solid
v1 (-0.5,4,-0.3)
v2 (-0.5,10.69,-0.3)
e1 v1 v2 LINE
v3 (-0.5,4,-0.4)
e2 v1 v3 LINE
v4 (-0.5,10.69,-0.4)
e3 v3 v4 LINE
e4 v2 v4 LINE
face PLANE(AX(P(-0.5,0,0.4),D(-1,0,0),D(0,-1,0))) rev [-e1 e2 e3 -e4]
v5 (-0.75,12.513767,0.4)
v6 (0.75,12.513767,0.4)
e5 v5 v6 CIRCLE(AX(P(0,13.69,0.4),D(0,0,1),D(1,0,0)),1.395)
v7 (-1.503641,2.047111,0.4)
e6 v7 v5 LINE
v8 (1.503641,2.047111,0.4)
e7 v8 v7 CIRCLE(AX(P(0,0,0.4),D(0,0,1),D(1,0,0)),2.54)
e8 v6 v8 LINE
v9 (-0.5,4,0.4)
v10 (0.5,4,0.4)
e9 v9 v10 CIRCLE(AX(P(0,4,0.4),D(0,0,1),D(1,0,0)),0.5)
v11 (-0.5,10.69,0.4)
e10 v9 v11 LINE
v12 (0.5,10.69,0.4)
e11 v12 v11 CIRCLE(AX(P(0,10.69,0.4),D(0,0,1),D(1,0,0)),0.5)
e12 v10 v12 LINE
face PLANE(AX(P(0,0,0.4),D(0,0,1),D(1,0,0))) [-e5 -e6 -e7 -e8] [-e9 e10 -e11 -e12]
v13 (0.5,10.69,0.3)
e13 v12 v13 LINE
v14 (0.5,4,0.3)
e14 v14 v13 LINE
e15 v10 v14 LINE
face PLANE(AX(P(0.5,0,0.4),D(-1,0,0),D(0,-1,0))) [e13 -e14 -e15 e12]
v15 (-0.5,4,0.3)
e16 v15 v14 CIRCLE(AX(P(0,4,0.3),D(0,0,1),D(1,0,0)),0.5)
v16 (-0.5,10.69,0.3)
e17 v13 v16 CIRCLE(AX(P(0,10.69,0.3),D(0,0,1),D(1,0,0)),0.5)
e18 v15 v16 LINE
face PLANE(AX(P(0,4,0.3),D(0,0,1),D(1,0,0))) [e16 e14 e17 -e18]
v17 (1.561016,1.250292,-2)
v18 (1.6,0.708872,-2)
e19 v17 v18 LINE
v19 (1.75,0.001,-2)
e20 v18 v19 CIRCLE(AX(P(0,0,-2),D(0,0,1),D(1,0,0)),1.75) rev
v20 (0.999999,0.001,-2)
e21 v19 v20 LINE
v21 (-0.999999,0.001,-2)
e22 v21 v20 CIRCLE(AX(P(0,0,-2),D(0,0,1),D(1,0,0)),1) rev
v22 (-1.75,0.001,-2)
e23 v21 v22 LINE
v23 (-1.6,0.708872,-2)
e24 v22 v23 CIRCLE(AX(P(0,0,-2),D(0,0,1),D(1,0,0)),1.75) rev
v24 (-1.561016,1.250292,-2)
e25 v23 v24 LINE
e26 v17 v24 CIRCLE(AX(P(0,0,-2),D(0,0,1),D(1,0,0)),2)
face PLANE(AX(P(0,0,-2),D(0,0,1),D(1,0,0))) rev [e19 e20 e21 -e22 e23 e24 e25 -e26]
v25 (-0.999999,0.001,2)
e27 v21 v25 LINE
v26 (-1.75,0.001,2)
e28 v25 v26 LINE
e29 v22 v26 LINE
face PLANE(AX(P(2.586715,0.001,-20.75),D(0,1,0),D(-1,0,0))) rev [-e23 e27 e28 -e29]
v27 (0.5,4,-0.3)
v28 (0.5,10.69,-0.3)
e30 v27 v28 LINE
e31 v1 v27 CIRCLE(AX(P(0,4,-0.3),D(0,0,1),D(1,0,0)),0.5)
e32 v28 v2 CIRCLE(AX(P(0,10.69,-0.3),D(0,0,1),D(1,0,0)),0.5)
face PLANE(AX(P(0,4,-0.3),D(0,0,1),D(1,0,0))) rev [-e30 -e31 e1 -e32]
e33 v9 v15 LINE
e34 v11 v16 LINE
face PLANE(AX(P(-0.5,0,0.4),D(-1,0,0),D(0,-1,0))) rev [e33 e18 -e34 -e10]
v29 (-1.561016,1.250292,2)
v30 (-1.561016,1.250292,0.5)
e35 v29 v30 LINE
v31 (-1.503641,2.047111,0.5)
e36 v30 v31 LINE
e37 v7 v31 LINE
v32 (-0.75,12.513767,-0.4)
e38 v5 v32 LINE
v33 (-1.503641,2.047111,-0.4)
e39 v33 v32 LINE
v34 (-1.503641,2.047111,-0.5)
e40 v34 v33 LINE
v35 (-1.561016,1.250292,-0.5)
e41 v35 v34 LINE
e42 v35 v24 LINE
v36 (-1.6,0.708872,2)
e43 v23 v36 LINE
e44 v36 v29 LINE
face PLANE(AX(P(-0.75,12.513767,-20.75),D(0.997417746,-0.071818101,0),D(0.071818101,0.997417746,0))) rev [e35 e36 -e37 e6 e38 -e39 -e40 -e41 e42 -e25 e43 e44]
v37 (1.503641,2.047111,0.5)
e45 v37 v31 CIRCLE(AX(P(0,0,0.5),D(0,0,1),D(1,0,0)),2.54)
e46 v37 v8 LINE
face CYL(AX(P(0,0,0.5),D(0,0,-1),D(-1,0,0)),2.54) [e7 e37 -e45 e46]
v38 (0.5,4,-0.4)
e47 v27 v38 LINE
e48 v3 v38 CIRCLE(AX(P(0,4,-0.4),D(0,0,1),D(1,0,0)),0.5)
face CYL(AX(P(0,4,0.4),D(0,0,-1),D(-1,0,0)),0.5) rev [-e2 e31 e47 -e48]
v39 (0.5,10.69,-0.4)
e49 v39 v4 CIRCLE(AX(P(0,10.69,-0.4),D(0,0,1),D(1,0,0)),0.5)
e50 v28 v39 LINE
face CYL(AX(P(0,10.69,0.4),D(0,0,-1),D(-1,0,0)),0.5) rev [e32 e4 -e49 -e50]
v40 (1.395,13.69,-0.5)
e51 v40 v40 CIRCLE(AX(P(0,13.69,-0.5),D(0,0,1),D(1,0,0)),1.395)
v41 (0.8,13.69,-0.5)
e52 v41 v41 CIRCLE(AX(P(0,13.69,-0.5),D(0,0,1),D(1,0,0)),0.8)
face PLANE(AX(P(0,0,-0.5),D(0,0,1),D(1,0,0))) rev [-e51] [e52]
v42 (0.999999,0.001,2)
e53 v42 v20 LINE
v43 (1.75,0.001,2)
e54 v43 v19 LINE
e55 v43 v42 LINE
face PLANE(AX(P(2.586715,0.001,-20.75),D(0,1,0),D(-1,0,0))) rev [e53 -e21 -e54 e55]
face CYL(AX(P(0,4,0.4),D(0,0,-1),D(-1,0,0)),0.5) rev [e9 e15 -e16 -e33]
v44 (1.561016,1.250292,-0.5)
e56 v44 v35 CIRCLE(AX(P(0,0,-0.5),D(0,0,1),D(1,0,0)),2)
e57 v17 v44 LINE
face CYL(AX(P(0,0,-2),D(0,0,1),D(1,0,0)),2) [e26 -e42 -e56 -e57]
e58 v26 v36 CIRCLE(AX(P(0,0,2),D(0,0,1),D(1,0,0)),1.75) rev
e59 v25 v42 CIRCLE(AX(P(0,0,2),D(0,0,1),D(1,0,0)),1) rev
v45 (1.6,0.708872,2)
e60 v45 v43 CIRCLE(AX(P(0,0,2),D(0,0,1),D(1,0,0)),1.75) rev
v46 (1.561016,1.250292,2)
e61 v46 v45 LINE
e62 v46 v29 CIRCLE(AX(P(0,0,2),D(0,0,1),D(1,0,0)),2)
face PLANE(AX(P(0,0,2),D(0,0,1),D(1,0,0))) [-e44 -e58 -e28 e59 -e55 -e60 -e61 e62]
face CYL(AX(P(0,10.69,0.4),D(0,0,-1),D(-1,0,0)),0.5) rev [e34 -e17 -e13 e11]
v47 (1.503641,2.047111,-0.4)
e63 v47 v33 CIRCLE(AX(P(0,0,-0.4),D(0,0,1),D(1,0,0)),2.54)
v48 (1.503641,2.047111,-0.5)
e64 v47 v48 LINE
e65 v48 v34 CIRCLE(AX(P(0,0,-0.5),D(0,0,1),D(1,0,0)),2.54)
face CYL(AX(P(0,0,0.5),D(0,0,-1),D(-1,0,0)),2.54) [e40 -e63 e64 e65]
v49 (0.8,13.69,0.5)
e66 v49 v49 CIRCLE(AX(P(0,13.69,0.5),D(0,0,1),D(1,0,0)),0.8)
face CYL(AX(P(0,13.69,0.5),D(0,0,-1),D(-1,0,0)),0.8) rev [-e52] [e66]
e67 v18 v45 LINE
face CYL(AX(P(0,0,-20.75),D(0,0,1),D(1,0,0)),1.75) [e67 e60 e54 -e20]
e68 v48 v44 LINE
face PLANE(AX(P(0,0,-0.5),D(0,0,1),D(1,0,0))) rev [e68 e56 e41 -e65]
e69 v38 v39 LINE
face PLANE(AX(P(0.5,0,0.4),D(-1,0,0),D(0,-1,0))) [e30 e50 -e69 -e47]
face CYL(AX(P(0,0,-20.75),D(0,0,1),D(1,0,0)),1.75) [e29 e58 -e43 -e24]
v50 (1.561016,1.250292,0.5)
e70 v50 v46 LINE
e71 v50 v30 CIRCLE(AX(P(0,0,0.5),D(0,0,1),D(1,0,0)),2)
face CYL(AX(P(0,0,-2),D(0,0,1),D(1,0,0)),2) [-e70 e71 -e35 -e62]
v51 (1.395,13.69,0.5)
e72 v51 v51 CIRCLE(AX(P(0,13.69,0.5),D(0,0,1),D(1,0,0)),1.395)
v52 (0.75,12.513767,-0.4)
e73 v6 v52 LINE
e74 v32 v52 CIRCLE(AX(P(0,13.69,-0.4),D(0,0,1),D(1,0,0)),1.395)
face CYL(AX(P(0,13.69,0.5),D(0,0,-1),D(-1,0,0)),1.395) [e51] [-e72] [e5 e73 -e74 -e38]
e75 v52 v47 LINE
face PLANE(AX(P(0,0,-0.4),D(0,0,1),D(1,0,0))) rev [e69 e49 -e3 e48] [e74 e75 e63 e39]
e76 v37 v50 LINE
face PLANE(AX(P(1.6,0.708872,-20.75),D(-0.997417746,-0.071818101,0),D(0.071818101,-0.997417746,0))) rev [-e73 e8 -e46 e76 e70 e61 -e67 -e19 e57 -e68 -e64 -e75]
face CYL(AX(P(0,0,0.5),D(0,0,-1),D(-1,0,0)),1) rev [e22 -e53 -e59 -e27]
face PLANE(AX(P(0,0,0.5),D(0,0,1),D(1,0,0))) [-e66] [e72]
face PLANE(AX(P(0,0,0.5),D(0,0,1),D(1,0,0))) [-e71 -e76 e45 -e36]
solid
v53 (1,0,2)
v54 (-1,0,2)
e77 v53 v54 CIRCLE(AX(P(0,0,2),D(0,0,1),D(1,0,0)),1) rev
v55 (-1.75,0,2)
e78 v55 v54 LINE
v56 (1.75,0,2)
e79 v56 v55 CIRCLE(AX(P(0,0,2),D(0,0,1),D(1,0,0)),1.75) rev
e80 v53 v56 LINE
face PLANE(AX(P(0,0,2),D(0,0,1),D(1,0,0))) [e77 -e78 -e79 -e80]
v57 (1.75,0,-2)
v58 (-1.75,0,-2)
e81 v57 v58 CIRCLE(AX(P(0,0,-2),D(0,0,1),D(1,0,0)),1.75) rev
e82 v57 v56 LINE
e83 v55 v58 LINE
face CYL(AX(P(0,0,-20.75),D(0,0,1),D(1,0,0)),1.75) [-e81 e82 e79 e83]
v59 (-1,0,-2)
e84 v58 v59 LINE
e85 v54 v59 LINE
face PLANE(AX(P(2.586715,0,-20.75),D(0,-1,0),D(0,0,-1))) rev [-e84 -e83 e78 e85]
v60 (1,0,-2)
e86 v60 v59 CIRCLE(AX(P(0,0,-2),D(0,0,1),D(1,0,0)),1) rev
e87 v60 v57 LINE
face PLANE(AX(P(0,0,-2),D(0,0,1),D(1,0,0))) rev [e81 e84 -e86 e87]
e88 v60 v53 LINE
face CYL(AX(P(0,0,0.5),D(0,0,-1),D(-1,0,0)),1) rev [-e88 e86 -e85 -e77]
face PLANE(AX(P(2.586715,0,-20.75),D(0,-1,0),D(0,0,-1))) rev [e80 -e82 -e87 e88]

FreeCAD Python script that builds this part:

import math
import FreeCAD as App
import Part
import Sketcher
from FreeCAD import Vector

doc = App.newDocument("Part")
body = doc.addObject("PartDesign::Body", "Body")

# Sketch on XY plane
sketch1 = body.newObject("Sketcher::SketchObject", "Sketch")
sketch1.AttachmentSupport = (doc.getObject("XY_Plane"), [""])
sketch1.MapMode = "FlatFace"
sketch1.addGeometry([
    Part.Circle(Vector(0, 0, 0), Vector(0, 0, 1), 2.5),
    Part.Circle(Vector(0, 0, 0), Vector(0, 0, 1), 1),
], False)
sketch1.addConstraint([
    Sketcher.Constraint("Coincident", 0, 3, -1, 1),
    Sketcher.Constraint("Coincident", 1, 3, -1, 1),
    Sketcher.Constraint("Diameter", 1, 2.0),
    Sketcher.Constraint("Diameter", 0, 5.08),
])
pad1 = body.newObject("PartDesign::Pad", "Pad")
pad1.Profile = sketch1
pad1.Length = 1
pad1.Midplane = True
body2 = doc.addObject("PartDesign::Body", "Body001")

# Sketch on XY plane
sketch2 = body2.newObject("Sketcher::SketchObject", "Sketch001")
sketch2.AttachmentSupport = (doc.getObject("XY_Plane001"), [""])
sketch2.MapMode = "FlatFace"
sketch2.addGeometry([
    Part.Circle(Vector(0, 13.7, 0), Vector(0, 0, 1), 1.4),
    Part.Circle(Vector(0, 13.7, 0), Vector(0, 0, 1), 0.8),
], False)
sketch2.addConstraint([
    Sketcher.Constraint("Coincident", 1, 3, 0, 3),
    Sketcher.Constraint("PointOnObject", 0, 3, -2),
    Sketcher.Constraint("Diameter", 1, 1.6),
    Sketcher.Constraint("Diameter", 0, 2.79),
    Sketcher.Constraint("DistanceY", -1, 1, 0, 3, 13.69),
])
pad2 = body2.newObject("PartDesign::Pad", "Pad001")
pad2.Profile = sketch2
pad2.Length = 1
pad2.Midplane = True
body.AllowCompound = True
doc.recompute()

boolean = body.newObject("PartDesign::Boolean", "Boolean")
boolean.Type = "Fuse"
boolean.addObjects([body2])

# Sketch on XY plane
sketch3 = body.newObject("Sketcher::SketchObject", "Sketch002")
sketch3.AttachmentSupport = (doc.getObject("XY_Plane"), [""])
sketch3.MapMode = "FlatFace"
sketch3.addGeometry([
    Part.LineSegment(Vector(-0.8, 12.5, 0), Vector(-1.6, 1.9, 0)),  # 0
    Part.ArcOfCircle(Part.Circle(Vector(0, 0, 0), Vector(0, 0, 1), 2.5), math.radians(49), math.radians(131)),  # 1
    Part.LineSegment(Vector(1.6, 1.9, 0), Vector(0.8, 12.5, 0)),  # 2
    Part.ArcOfCircle(Part.Circle(Vector(0, 13.7, 0), Vector(0, 0, 1), 1.4), math.radians(-123), math.radians(-57)),  # 3
    Part.LineSegment(Vector(0.5, 10.7, 0), Vector(0.5, 4, 0)),  # 4
    Part.ArcOfCircle(Part.Circle(Vector(0, 4, 0), Vector(0, 0, 1), 0.5), math.radians(180), math.radians(360)),  # 5
    Part.LineSegment(Vector(-0.5, 4, 0), Vector(-0.5, 10.7, 0)),  # 6
    Part.ArcOfCircle(Part.Circle(Vector(0, 10.7, 0), Vector(0, 0, 1), 0.5), math.radians(0), math.radians(180)),  # 7
], False)
sketch3.addConstraint([
    Sketcher.Constraint("Coincident", 0, 2, 1, 2),
    Sketcher.Constraint("Coincident", 1, 1, 2, 1),
    Sketcher.Constraint("Coincident", 2, 2, 3, 2),
    Sketcher.Constraint("Coincident", 3, 1, 0, 1),
    Sketcher.Constraint("Tangent", 4, 2, 5, 2),
    Sketcher.Constraint("Tangent", 5, 1, 6, 1),
    Sketcher.Constraint("Tangent", 6, 2, 7, 2),
    Sketcher.Constraint("Tangent", 7, 1, 4, 1),
    Sketcher.Constraint("Vertical", 4),
    Sketcher.Constraint("Vertical", 6),
    Sketcher.Constraint("Coincident", 1, 3, -1, 1),
    Sketcher.Constraint("Symmetric", 2, 2, 3, 1, -2),
    Sketcher.Constraint("PointOnObject", 5, 3, -2),
    Sketcher.Constraint("Horizontal", 0, 2, 1, 1),
    Sketcher.Constraint("Radius", 5, 0.5),
    Sketcher.Constraint("Radius", 1, 2.54),
    Sketcher.Constraint("DistanceY", -1, 1, 5, 3, 4.0),
    Sketcher.Constraint("Radius", 3, 1.395),
    Sketcher.Constraint("DistanceY", 7, 3, 3, 3, 3.0),
    Sketcher.Constraint("DistanceY", 4, 2, 4, 1, 6.69),
    Sketcher.Constraint("DistanceX", 0, 2, 1, 1, 3.3),
    Sketcher.Constraint("DistanceX", 2, 2, 1, 1, 0.9),
])
pad3 = body.newObject("PartDesign::Pad", "Pad002")
pad3.Profile = sketch3
pad3.Length = 0.8
pad3.Midplane = True

# Sketch on XY plane
sketch4 = body.newObject("Sketcher::SketchObject", "Sketch003")
sketch4.AttachmentSupport = (doc.getObject("XY_Plane"), [""])
sketch4.MapMode = "FlatFace"
sketch4.addGeometry([
    Part.LineSegment(Vector(-0.5, 10.7, 0), Vector(-0.5, 4, 0)),
    Part.ArcOfCircle(Part.Circle(Vector(0, 4, 0), Vector(0, 0, 1), 0.5), math.radians(180), math.radians(360)),
    Part.LineSegment(Vector(0.5, 4, 0), Vector(0.5, 10.7, 0)),
    Part.ArcOfCircle(Part.Circle(Vector(0, 10.7, 0), Vector(0, 0, 1), 0.5), math.radians(0), math.radians(180)),
], False)
sketch4.addConstraint([
    Sketcher.Constraint("Tangent", 0, 2, 1, 1),
    Sketcher.Constraint("Tangent", 1, 2, 2, 1),
    Sketcher.Constraint("Tangent", 2, 2, 3, 1),
    Sketcher.Constraint("Tangent", 3, 2, 0, 1),
    Sketcher.Constraint("Vertical", 0),
    Sketcher.Constraint("Vertical", 2),
    Sketcher.Constraint("PointOnObject", 1, 3, -2),
    Sketcher.Constraint("Radius", 1, 0.5),
    Sketcher.Constraint("DistanceY", -1, 1, 1, 3, 4.0),
    Sketcher.Constraint("DistanceY", 0, 2, 0, 1, 6.69),
])
pad4 = body.newObject("PartDesign::Pad", "Pad003")
pad4.Profile = sketch4
pad4.Length = 0.6
pad4.Midplane = True

# Sketch on XY plane
sketch5 = body.newObject("Sketcher::SketchObject", "Sketch004")
sketch5.AttachmentSupport = (doc.getObject("XY_Plane"), [""])
sketch5.MapMode = "FlatFace"
sketch5.AttachmentOffset = App.Placement(Vector(0, 0, 0.5), App.Rotation())
sketch5.addGeometry([
    Part.Circle(Vector(0, 0, 0), Vector(0, 0, 1), 2),
    Part.Circle(Vector(0, 0, 0), Vector(0, 0, 1), 1),
], False)
sketch5.addConstraint([
    Sketcher.Constraint("Coincident", 0, 3, -1, 1),
    Sketcher.Constraint("Coincident", 1, 3, -1, 1),
    Sketcher.Constraint("Diameter", 0, 4.0),
    Sketcher.Constraint("Diameter", 1, 2.0),
])
pad5 = body.newObject("PartDesign::Pad", "Pad004")
pad5.Profile = sketch5
pad5.Type = "TwoLengths"
pad5.Length = 1.5
pad5.Length2 = 2.5

# Sketch on XY plane
sketch6 = body.newObject("Sketcher::SketchObject", "Sketch005")
sketch6.AttachmentSupport = (doc.getObject("XY_Plane"), [""])
sketch6.MapMode = "FlatFace"
sketch6.addGeometry([
    Part.LineSegment(Vector(-0.8, 12.5, 0), Vector(-2.9, 2, 0)),  # 0
    Part.ArcOfCircle(Part.Circle(Vector(0, 0, 0), Vector(0, 0, 1), 3.5), math.radians(146), math.radians(394)),  # 1
    Part.LineSegment(Vector(2.9, 2, 0), Vector(0.8, 12.5, 0)),  # 2
    Part.LineSegment(Vector(0.8, 12.5, 0), Vector(1.6, 0.7, 0)),  # 3
    Part.ArcOfCircle(Part.Circle(Vector(0, 0, 0), Vector(0, 0, 1), 1.8), math.radians(156), math.radians(384)),  # 4
    Part.LineSegment(Vector(-1.6, 0.7, 0), Vector(-0.8, 12.5, 0)),  # 5
], False)
sketch6.addConstraint([
    Sketcher.Constraint("Coincident", 0, 2, 1, 1),
    Sketcher.Constraint("Coincident", 1, 2, 2, 1),
    Sketcher.Constraint("Coincident", 2, 2, 3, 1),
    Sketcher.Constraint("Coincident", 3, 2, 4, 2),
    Sketcher.Constraint("Coincident", 4, 1, 5, 1),
    Sketcher.Constraint("Coincident", 5, 2, 0, 1),
    Sketcher.Constraint("Coincident", 1, 3, -1, 1),
    Sketcher.Constraint("Coincident", 4, 3, -1, 1),
    Sketcher.Constraint("Symmetric", 2, 2, 5, 2, -2),
    Sketcher.Constraint("Horizontal", 0, 2, 1, 2),
    Sketcher.Constraint("Horizontal", 3, 2, 4, 1),
    Sketcher.Constraint("Radius", 1, 3.5),
    Sketcher.Constraint("Radius", 4, 1.75),
    Sketcher.Constraint("DistanceX", -1, 1, 3, 2, 1.6),
    Sketcher.Constraint("DistanceX", 5, 2, 2, 2, 1.5),
    Sketcher.Constraint("DistanceX", 0, 2, -1, 1, 2.893601),
    Sketcher.Constraint("DistanceY", 1, 2, 2, 2, 10.544739),
])
pocket1 = body.newObject("PartDesign::Pocket", "Pocket")
pocket1.Profile = sketch6
pocket1.Length = 41.5
pocket1.Midplane = True

# Sketch on XY plane
sketch7 = body.newObject("Sketcher::SketchObject", "Sketch006")
sketch7.AttachmentSupport = (doc.getObject("XY_Plane"), [""])
sketch7.MapMode = "FlatFace"
sketch7.addGeometry([
    Part.LineSegment(Vector(-2.8403, 0, 0), Vector(2.5867, 0, 0)),
    Part.LineSegment(Vector(2.5867, 0, 0), Vector(2.5867, 0.001, 0)),
    Part.LineSegment(Vector(2.5867, 0.001, 0), Vector(-2.8403, 0, 0)),
], False)
sketch7.addConstraint([
    Sketcher.Constraint("Coincident", 0, 2, 1, 1),
    Sketcher.Constraint("Coincident", 1, 2, 2, 1),
    Sketcher.Constraint("Coincident", 2, 2, 0, 1),
    Sketcher.Constraint("Horizontal", 0),
    Sketcher.Constraint("Vertical", 1),
    Sketcher.Constraint("PointOnObject", 0, 2, -1),
    Sketcher.Constraint("DistanceY", 1, 1, 1, 2, 0.001),
    Sketcher.Constraint("DistanceX", 0, 1, 0, 2, 5.427062),
    Sketcher.Constraint("DistanceX", -1, 1, 0, 2, 2.586715),
])
pocket2 = body.newObject("PartDesign::Pocket", "Pocket001")
pocket2.Profile = sketch7
pocket2.Length = 41.5
pocket2.Midplane = True

doc.recompute()
